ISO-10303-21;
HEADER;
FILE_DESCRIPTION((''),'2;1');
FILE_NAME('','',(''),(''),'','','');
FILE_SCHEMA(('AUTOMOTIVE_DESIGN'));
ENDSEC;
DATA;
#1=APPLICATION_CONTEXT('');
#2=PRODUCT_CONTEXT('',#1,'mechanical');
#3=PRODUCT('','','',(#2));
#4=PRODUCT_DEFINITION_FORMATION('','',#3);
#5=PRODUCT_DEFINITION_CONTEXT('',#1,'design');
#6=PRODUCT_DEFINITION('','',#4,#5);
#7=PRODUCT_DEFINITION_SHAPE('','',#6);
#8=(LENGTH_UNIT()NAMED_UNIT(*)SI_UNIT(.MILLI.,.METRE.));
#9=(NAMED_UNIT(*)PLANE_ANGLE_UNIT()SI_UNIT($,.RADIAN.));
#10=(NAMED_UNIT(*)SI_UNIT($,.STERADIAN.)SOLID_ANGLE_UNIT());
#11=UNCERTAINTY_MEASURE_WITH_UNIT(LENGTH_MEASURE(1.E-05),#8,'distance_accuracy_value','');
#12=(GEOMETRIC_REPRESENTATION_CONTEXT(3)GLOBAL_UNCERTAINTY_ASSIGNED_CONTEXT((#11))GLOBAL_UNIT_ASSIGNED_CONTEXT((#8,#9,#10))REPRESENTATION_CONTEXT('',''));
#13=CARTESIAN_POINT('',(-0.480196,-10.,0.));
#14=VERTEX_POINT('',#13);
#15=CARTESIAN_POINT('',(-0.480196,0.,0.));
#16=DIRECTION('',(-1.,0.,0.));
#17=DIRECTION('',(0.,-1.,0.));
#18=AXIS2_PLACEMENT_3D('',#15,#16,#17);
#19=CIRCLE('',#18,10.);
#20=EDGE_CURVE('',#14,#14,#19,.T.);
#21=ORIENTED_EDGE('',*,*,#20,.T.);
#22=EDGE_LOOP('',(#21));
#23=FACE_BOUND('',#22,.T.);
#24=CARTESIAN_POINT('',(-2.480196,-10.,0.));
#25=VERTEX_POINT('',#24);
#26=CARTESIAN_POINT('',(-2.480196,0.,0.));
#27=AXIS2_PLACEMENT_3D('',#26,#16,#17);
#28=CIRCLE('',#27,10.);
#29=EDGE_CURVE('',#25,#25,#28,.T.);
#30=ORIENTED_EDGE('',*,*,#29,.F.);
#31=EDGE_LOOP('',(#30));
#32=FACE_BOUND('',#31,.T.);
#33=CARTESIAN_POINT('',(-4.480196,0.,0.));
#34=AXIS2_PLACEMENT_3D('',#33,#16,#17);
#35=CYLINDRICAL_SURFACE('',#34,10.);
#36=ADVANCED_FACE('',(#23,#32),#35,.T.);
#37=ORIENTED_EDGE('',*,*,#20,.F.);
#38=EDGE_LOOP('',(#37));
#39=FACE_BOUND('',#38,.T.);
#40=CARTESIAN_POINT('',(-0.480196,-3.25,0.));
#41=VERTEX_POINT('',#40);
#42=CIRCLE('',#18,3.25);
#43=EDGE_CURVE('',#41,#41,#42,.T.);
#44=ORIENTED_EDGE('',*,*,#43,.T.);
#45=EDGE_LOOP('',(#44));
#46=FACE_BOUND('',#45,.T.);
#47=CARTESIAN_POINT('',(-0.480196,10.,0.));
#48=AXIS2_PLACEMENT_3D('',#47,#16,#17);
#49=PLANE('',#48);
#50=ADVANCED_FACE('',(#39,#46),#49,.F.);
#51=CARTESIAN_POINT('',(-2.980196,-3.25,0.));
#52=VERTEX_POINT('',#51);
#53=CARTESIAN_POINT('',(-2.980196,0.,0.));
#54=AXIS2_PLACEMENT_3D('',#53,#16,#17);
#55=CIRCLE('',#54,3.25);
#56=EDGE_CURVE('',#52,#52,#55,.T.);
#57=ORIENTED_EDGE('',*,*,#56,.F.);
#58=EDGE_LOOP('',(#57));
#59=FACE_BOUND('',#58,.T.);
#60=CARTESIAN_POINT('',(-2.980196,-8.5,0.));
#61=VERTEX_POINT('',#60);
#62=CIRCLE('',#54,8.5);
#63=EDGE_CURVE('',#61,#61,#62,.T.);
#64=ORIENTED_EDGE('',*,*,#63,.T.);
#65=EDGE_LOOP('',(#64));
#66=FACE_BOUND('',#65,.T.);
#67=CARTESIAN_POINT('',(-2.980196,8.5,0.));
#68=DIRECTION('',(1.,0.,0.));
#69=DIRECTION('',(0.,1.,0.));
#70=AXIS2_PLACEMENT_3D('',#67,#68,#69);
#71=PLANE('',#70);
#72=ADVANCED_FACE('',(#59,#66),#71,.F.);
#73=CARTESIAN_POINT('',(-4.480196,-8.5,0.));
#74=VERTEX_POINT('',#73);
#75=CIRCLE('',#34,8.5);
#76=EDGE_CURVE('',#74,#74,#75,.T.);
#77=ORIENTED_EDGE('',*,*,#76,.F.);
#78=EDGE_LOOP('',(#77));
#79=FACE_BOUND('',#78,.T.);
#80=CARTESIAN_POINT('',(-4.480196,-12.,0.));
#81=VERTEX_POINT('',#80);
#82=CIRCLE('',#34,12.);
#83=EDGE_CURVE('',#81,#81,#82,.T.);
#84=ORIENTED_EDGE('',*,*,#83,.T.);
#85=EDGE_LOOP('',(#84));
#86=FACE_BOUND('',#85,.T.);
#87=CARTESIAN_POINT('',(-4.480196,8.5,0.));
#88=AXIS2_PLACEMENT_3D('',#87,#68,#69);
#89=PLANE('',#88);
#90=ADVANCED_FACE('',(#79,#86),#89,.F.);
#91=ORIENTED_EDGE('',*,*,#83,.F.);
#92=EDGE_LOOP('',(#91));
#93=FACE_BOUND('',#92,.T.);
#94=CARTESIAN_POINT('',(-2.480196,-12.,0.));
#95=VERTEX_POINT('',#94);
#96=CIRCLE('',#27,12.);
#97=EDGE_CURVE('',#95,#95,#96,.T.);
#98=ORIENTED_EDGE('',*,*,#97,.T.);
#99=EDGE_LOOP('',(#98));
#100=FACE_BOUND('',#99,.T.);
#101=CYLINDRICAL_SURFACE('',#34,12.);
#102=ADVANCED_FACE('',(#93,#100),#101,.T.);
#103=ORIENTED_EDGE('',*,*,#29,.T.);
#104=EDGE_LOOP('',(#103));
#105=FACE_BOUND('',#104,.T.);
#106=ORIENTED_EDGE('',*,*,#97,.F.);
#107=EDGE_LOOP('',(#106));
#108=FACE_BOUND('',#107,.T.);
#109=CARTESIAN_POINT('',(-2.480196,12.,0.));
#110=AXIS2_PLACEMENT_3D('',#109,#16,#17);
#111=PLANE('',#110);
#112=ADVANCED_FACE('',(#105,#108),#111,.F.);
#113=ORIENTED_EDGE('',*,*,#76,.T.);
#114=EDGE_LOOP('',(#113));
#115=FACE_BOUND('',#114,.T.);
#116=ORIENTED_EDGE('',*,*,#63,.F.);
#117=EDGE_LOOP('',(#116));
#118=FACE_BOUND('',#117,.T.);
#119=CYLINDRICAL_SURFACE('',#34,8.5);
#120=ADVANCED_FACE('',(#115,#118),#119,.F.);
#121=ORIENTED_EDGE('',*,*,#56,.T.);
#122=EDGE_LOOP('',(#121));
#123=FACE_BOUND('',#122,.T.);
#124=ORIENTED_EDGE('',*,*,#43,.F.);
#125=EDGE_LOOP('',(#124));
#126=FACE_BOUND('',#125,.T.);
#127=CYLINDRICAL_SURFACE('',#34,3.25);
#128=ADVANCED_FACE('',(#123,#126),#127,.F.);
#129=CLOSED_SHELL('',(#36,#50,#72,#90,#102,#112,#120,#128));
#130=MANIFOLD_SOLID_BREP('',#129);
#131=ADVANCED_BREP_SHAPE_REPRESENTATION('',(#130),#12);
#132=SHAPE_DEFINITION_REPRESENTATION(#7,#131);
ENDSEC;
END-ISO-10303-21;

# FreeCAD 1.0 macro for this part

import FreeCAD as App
import Part
import Sketcher

V = App.Vector
Q = App.Units.Quantity

doc = App.newDocument("Part")
body = doc.addObject("PartDesign::Body", "Body")

sketch1 = body.newObject("Sketcher::SketchObject", "Sketch")
sketch1.AttachmentSupport = (doc.getObject("XY_Plane"), [""])
sketch1.MapMode = "FlatFace"
sketch1.addGeometry([
    Part.LineSegment(V(-4.5, 12, 0), V(-4.5, 8.5, 0)),
    Part.LineSegment(V(-4.5, 8.5, 0), V(-3, 8.5, 0)),
    Part.LineSegment(V(-3, 8.5, 0), V(-3, 3.2, 0)),
    Part.LineSegment(V(-3, 3.2, 0), V(-0.5, 3.2, 0)),
    Part.LineSegment(V(-0.5, 3.2, 0), V(-0.5, 10, 0)),
    Part.LineSegment(V(-0.5, 10, 0), V(-2.5, 10, 0)),
    Part.LineSegment(V(-2.5, 10, 0), V(-2.5, 12, 0)),
    Part.LineSegment(V(-2.5, 12, 0), V(-4.5, 12, 0)),
], False)
sketch1.addConstraint([
    Sketcher.Constraint("Coincident", 0, 2, 1, 1),
    Sketcher.Constraint("Coincident", 1, 2, 2, 1),
    Sketcher.Constraint("Coincident", 2, 2, 3, 1),
    Sketcher.Constraint("Coincident", 3, 2, 4, 1),
    Sketcher.Constraint("Coincident", 4, 2, 5, 1),
    Sketcher.Constraint("Coincident", 5, 2, 6, 1),
    Sketcher.Constraint("Coincident", 6, 2, 7, 1),
    Sketcher.Constraint("Coincident", 7, 2, 0, 1),
    Sketcher.Constraint("Vertical", 0),
    Sketcher.Constraint("Horizontal", 1),
    Sketcher.Constraint("Vertical", 2),
    Sketcher.Constraint("Horizontal", 3),
    Sketcher.Constraint("Vertical", 4),
    Sketcher.Constraint("Horizontal", 5),
    Sketcher.Constraint("Vertical", 6),
    Sketcher.Constraint("Horizontal", 7),
    Sketcher.Constraint("Equal", 5, 7),
    Sketcher.Constraint("Equal", 7, 6),
    Sketcher.Constraint("DistanceX", 5, 2, 5, 1, Q("2 mm")),
    Sketcher.Constraint("DistanceX", 1, 1, 1, 2, Q("1.5 mm")),
    Sketcher.Constraint("DistanceY", 0, 2, 0, 1, Q("3.5 mm")),
    Sketcher.Constraint("DistanceY", -1, 1, 4, 2, Q("10 mm")),
    Sketcher.Constraint("DistanceY", 2, 2, 2, 1, Q("5.25 mm")),
    Sketcher.Constraint("DistanceX", 0, 2, -1, 1, Q("4.480196 mm")),
])
revolution = body.newObject("PartDesign::Revolution", "Revolution")
revolution.Profile = sketch1
revolution.ReferenceAxis = (sketch1, ["H_Axis"])
revolution.Angle = 360

doc.recompute()
